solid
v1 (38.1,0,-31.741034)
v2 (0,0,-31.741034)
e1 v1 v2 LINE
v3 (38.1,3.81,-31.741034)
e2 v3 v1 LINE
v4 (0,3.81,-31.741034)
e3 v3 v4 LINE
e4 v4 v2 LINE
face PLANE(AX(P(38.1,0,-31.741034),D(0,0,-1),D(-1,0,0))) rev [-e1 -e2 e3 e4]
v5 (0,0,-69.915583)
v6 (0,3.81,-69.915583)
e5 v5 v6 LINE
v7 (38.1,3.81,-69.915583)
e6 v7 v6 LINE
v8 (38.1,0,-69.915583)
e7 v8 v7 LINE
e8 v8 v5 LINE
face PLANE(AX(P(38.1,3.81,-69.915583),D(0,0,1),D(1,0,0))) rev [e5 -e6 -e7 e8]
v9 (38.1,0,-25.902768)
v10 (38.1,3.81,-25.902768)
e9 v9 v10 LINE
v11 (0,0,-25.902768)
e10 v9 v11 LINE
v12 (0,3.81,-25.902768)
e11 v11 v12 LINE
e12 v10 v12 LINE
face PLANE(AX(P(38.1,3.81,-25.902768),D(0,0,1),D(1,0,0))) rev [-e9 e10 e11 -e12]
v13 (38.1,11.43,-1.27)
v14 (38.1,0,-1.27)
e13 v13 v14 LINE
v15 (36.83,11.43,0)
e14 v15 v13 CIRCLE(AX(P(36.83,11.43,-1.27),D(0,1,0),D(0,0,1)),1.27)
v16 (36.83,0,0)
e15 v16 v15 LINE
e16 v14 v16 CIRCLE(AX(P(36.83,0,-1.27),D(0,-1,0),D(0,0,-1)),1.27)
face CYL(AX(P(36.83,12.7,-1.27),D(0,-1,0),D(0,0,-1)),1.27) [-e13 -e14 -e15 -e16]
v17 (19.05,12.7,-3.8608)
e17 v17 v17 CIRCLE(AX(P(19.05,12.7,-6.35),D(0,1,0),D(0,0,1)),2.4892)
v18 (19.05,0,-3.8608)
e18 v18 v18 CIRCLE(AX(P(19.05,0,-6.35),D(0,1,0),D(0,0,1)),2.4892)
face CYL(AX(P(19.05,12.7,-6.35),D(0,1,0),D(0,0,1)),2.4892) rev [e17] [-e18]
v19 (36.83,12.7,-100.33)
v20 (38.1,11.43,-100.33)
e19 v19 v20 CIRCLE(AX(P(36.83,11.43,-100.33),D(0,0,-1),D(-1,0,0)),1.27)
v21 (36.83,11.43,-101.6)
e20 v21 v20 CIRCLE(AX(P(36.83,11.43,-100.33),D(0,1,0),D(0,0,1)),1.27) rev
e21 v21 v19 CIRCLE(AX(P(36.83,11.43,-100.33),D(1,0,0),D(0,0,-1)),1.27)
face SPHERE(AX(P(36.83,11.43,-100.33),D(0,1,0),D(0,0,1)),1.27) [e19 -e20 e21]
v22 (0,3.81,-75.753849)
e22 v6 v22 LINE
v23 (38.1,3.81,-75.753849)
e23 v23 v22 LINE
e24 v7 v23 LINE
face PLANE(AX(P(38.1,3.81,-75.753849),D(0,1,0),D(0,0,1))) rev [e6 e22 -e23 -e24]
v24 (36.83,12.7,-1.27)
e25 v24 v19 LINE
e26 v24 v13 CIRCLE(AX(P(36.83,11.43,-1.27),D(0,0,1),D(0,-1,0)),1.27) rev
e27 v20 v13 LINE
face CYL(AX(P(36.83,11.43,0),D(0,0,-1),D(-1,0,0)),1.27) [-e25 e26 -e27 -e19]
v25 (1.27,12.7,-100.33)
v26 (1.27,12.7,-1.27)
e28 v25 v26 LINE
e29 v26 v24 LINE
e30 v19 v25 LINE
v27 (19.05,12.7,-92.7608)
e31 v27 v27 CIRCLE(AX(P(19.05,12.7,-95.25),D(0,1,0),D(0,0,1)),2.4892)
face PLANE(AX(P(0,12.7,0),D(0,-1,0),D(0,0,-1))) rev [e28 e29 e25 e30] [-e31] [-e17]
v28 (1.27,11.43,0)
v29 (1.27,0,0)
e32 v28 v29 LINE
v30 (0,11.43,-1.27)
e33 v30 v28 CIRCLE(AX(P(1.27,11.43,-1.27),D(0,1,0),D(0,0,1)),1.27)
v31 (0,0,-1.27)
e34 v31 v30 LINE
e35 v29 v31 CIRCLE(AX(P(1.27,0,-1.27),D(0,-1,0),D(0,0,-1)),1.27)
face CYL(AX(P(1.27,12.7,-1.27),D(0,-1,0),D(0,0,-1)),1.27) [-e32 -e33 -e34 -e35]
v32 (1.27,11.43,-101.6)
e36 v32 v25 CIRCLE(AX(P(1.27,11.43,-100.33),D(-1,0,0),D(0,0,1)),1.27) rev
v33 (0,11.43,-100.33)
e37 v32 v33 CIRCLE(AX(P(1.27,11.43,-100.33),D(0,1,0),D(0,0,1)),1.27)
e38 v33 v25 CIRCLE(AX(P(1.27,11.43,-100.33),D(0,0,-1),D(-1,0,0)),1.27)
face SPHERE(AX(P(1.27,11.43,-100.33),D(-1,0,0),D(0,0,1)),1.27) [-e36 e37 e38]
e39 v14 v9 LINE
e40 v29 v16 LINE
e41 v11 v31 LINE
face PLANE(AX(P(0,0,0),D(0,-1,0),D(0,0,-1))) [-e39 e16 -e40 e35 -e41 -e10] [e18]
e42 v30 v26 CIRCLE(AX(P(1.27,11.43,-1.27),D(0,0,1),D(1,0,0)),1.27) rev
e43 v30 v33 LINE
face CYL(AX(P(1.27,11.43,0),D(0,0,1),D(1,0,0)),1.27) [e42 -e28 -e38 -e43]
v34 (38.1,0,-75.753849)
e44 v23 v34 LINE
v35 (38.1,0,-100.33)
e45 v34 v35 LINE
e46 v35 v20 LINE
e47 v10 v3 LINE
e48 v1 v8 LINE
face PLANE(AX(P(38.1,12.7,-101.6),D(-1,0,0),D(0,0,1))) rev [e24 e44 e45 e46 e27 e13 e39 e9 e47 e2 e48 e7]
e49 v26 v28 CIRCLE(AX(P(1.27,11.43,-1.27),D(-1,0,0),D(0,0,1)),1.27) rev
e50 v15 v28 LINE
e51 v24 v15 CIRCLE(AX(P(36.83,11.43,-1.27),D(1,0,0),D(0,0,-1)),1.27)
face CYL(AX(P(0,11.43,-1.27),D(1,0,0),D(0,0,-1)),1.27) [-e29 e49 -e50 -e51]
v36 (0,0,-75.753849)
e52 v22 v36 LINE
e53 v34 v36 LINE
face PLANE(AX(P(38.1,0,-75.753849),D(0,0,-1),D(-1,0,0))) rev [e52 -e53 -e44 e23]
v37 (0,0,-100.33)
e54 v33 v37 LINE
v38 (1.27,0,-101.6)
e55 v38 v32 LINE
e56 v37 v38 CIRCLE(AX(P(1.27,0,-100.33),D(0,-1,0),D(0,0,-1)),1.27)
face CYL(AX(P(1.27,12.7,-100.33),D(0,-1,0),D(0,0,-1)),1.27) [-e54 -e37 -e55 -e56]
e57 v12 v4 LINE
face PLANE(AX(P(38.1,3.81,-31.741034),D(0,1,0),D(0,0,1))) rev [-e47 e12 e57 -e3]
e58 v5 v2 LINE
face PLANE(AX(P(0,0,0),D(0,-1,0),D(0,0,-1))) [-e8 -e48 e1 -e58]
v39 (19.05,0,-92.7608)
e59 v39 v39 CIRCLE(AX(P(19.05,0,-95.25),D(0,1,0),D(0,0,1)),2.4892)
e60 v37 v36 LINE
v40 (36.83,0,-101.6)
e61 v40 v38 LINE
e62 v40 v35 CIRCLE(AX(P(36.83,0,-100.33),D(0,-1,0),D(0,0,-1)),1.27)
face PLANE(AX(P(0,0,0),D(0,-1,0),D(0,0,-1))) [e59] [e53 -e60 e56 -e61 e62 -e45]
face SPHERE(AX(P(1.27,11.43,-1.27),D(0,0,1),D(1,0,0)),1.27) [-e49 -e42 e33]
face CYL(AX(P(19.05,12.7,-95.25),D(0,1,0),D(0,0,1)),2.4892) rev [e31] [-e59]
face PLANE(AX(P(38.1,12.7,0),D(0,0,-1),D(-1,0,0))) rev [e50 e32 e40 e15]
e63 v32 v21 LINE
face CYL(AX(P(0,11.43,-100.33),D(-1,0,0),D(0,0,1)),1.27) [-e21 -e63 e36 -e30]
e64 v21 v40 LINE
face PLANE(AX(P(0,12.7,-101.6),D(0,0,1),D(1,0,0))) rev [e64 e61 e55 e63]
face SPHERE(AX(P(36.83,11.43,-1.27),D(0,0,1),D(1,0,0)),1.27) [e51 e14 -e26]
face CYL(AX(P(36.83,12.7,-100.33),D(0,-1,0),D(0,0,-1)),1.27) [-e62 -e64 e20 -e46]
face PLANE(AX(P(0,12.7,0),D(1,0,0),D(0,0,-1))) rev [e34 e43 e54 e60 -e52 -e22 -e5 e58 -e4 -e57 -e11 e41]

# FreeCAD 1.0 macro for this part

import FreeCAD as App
import Part
import Sketcher

V = App.Vector
Q = App.Units.Quantity


def edges_at(feature, points):
    """Names of the edges that pass closest to the given points."""
    edges = feature.Shape.Edges
    near = lambda p: min(range(len(edges)), key=lambda i: edges[i].distToShape(Part.Vertex(*p))[0])
    return sorted({f"Edge{near(p) + 1}" for p in points})

doc = App.newDocument("Part")
params = doc.addObject("Spreadsheet::Sheet", "Params")
for row, (alias, value) in enumerate([
    ("sketch1_height", "4 in"),
    ("sketch1_width", "1.5 in"),
    ("pad1_length", "0.5 in"),
    ("sketch2_width", "0.15 in"),
    ("fillet_radius", "0.05 in"),
    ("sketch3_diameter", "0.196 in"),
    ("hole_diameter", "0.196 in"),
], start=1):
    params.set(f"A{row}", alias)
    params.set(f"B{row}", "=" + value)
    params.setAlias(f"B{row}", alias)

body = doc.addObject("PartDesign::Body", "Body")

# Sketch on XZ plane
sketch1 = body.newObject("Sketcher::SketchObject", "Sketch")
sketch1.AttachmentSupport = (doc.getObject("XZ_Plane"), [""])
sketch1.MapMode = "FlatFace"
sketch1.addGeometry(Part.LineSegment(V(0, -102, 0), V(0, 0, 0)), False)
sketch1.addGeometry(Part.LineSegment(V(0, 0, 0), V(38, 0, 0)), False)
sketch1.addGeometry(Part.LineSegment(V(38, 0, 0), V(38, -102, 0)), False)
sketch1.addGeometry(Part.LineSegment(V(38, -102, 0), V(0, -102, 0)), False)
sketch1.addConstraint(Sketcher.Constraint("Coincident", 0, 2, 1, 1))
sketch1.addConstraint(Sketcher.Constraint("Coincident", 1, 2, 2, 1))
sketch1.addConstraint(Sketcher.Constraint("Coincident", 2, 2, 3, 1))
sketch1.addConstraint(Sketcher.Constraint("Coincident", 3, 2, 0, 1))
sketch1.addConstraint(Sketcher.Constraint("Vertical", 0))
sketch1.addConstraint(Sketcher.Constraint("Horizontal", 1))
sketch1.addConstraint(Sketcher.Constraint("Vertical", 2))
sketch1.addConstraint(Sketcher.Constraint("Horizontal", 3))
sketch1.addConstraint(Sketcher.Constraint("Coincident", 0, 2, -1, 1))
sketch1.addConstraint(Sketcher.Constraint("DistanceY", 0, 1, 0, 2, Q("4 in")))
sketch1.addConstraint(Sketcher.Constraint("DistanceX", 1, 1, 1, 2, Q("1.5 in")))
sketch1.setExpression("Constraints[9]", "Params.sketch1_height")
sketch1.setExpression("Constraints[10]", "Params.sketch1_width")
pad1 = body.newObject("PartDesign::Pad", "Pad")
pad1.Profile = sketch1
pad1.setExpression("Length", "Params.pad1_length")
pad1.Reversed = True

# Sketch on YZ plane
sketch2 = body.newObject("Sketcher::SketchObject", "Sketch001")
sketch2.AttachmentSupport = (doc.getObject("YZ_Plane"), [""])
sketch2.MapMode = "FlatFace"
sketch2.addGeometry(Part.LineSegment(V(3.8, -75.8, 0), V(0, -75.8, 0)), False)
sketch2.addGeometry(Part.LineSegment(V(0, -75.8, 0), V(0, -69.9, 0)), False)
sketch2.addGeometry(Part.LineSegment(V(0, -69.9, 0), V(3.8, -69.9, 0)), False)
sketch2.addGeometry(Part.LineSegment(V(3.8, -69.9, 0), V(3.8, -75.8, 0)), False)
sketch2.addGeometry(Part.LineSegment(V(3.8, -31.7, 0), V(0, -31.7, 0)), False)
sketch2.addGeometry(Part.LineSegment(V(0, -31.7, 0), V(0, -25.9, 0)), False)
sketch2.addGeometry(Part.LineSegment(V(0, -25.9, 0), V(3.8, -25.9, 0)), False)
sketch2.addGeometry(Part.LineSegment(V(3.8, -25.9, 0), V(3.8, -31.7, 0)), False)
sketch2.addConstraint(Sketcher.Constraint("Coincident", 0, 2, 1, 1))
sketch2.addConstraint(Sketcher.Constraint("Coincident", 1, 2, 2, 1))
sketch2.addConstraint(Sketcher.Constraint("Coincident", 2, 2, 3, 1))
sketch2.addConstraint(Sketcher.Constraint("Coincident", 3, 2, 0, 1))
sketch2.addConstraint(Sketcher.Constraint("Coincident", 4, 2, 5, 1))
sketch2.addConstraint(Sketcher.Constraint("Coincident", 5, 2, 6, 1))
sketch2.addConstraint(Sketcher.Constraint("Coincident", 6, 2, 7, 1))
sketch2.addConstraint(Sketcher.Constraint("Coincident", 7, 2, 4, 1))
sketch2.addConstraint(Sketcher.Constraint("Horizontal", 0))
sketch2.addConstraint(Sketcher.Constraint("Vertical", 1))
sketch2.addConstraint(Sketcher.Constraint("Horizontal", 2))
sketch2.addConstraint(Sketcher.Constraint("Vertical", 3))
sketch2.addConstraint(Sketcher.Constraint("Horizontal", 4))
sketch2.addConstraint(Sketcher.Constraint("Vertical", 5))
sketch2.addConstraint(Sketcher.Constraint("Horizontal", 6))
sketch2.addConstraint(Sketcher.Constraint("Vertical", 7))
sketch2.addConstraint(Sketcher.Constraint("PointOnObject", 0, 2, -2))
sketch2.addConstraint(Sketcher.Constraint("PointOnObject", 4, 2, -2))
sketch2.addConstraint(Sketcher.Constraint("Vertical", 3, 2, 6, 2))
sketch2.addConstraint(Sketcher.Constraint("Equal", 3, 5))
sketch2.addConstraint(Sketcher.Constraint("DistanceX", 0, 2, 0, 1, Q("0.15 in")))
sketch2.addConstraint(Sketcher.Constraint("DistanceY", 1, 1, 1, 2, Q("5.838266 mm")))
sketch2.addConstraint(Sketcher.Constraint("DistanceY", 0, 2, -1, 1, Q("75.753849 mm")))
sketch2.addConstraint(Sketcher.Constraint("DistanceY", 1, 2, 4, 2, Q("38.174549 mm")))
sketch2.setExpression("Constraints[20]", "Params.sketch2_width")
pocket1 = body.newObject("PartDesign::Pocket", "Pocket")
pocket1.Profile = sketch2
pocket1.Type = "ThroughAll"
pocket1.Reversed = True
doc.recompute()

fillet = body.newObject("PartDesign::Fillet", "Fillet")
fillet.Base = (pocket1, edges_at(pocket1, [
    (19.05, 12.7, -101.6),
    (0, 12.7, -50.8),
    (19.05, 12.7, 0),
    (0, 6.35, 0),
    (0, 6.35, -101.6),
    (38.1, 6.35, -101.6),
    (38.1, 6.35, 0),
    (38.1, 12.7, -50.8),
]))
fillet.setExpression("Radius", "Params.fillet_radius")

# Sketch on XZ plane
sketch3 = body.newObject("Sketcher::SketchObject", "Sketch002")
sketch3.AttachmentSupport = (doc.getObject("XZ_Plane"), [""])
sketch3.MapMode = "FlatFace"
sketch3.AttachmentOffset = App.Placement(V(0, 0, -0.5 * 25.4), App.Rotation())
sketch3.addGeometry(Part.Circle(V(19.1, -95.2, 0), V(0, 0, 1), 2.5), False)
sketch3.addGeometry(Part.Circle(V(19.1, -6.3, 0), V(0, 0, 1), 2.5), False)
sketch3.addConstraint(Sketcher.Constraint("Equal", 0, 1))
sketch3.addConstraint(Sketcher.Constraint("Vertical", 0, 3, 1, 3))
sketch3.addConstraint(Sketcher.Constraint("Diameter", 0, Q("0.196 in")))
sketch3.addConstraint(Sketcher.Constraint("DistanceY", 0, 3, 1, 3, Q("3.5 in")))
sketch3.addConstraint(Sketcher.Constraint("DistanceX", -1, 1, 0, 3, Q("0.75 in")))
sketch3.addConstraint(Sketcher.Constraint("DistanceY", 0, 3, -1, 1, Q("3.75 in")))
sketch3.setExpression("Constraints[2]", "Params.sketch3_diameter")
doc.recompute()
hole = body.newObject("PartDesign::Hole", "Hole")
hole.Profile = sketch3
hole.ThreadType = "None"
hole.setExpression("Diameter", "Params.hole_diameter")
hole.DepthType = "ThroughAll"
hole.Reversed = True

doc.recompute()
